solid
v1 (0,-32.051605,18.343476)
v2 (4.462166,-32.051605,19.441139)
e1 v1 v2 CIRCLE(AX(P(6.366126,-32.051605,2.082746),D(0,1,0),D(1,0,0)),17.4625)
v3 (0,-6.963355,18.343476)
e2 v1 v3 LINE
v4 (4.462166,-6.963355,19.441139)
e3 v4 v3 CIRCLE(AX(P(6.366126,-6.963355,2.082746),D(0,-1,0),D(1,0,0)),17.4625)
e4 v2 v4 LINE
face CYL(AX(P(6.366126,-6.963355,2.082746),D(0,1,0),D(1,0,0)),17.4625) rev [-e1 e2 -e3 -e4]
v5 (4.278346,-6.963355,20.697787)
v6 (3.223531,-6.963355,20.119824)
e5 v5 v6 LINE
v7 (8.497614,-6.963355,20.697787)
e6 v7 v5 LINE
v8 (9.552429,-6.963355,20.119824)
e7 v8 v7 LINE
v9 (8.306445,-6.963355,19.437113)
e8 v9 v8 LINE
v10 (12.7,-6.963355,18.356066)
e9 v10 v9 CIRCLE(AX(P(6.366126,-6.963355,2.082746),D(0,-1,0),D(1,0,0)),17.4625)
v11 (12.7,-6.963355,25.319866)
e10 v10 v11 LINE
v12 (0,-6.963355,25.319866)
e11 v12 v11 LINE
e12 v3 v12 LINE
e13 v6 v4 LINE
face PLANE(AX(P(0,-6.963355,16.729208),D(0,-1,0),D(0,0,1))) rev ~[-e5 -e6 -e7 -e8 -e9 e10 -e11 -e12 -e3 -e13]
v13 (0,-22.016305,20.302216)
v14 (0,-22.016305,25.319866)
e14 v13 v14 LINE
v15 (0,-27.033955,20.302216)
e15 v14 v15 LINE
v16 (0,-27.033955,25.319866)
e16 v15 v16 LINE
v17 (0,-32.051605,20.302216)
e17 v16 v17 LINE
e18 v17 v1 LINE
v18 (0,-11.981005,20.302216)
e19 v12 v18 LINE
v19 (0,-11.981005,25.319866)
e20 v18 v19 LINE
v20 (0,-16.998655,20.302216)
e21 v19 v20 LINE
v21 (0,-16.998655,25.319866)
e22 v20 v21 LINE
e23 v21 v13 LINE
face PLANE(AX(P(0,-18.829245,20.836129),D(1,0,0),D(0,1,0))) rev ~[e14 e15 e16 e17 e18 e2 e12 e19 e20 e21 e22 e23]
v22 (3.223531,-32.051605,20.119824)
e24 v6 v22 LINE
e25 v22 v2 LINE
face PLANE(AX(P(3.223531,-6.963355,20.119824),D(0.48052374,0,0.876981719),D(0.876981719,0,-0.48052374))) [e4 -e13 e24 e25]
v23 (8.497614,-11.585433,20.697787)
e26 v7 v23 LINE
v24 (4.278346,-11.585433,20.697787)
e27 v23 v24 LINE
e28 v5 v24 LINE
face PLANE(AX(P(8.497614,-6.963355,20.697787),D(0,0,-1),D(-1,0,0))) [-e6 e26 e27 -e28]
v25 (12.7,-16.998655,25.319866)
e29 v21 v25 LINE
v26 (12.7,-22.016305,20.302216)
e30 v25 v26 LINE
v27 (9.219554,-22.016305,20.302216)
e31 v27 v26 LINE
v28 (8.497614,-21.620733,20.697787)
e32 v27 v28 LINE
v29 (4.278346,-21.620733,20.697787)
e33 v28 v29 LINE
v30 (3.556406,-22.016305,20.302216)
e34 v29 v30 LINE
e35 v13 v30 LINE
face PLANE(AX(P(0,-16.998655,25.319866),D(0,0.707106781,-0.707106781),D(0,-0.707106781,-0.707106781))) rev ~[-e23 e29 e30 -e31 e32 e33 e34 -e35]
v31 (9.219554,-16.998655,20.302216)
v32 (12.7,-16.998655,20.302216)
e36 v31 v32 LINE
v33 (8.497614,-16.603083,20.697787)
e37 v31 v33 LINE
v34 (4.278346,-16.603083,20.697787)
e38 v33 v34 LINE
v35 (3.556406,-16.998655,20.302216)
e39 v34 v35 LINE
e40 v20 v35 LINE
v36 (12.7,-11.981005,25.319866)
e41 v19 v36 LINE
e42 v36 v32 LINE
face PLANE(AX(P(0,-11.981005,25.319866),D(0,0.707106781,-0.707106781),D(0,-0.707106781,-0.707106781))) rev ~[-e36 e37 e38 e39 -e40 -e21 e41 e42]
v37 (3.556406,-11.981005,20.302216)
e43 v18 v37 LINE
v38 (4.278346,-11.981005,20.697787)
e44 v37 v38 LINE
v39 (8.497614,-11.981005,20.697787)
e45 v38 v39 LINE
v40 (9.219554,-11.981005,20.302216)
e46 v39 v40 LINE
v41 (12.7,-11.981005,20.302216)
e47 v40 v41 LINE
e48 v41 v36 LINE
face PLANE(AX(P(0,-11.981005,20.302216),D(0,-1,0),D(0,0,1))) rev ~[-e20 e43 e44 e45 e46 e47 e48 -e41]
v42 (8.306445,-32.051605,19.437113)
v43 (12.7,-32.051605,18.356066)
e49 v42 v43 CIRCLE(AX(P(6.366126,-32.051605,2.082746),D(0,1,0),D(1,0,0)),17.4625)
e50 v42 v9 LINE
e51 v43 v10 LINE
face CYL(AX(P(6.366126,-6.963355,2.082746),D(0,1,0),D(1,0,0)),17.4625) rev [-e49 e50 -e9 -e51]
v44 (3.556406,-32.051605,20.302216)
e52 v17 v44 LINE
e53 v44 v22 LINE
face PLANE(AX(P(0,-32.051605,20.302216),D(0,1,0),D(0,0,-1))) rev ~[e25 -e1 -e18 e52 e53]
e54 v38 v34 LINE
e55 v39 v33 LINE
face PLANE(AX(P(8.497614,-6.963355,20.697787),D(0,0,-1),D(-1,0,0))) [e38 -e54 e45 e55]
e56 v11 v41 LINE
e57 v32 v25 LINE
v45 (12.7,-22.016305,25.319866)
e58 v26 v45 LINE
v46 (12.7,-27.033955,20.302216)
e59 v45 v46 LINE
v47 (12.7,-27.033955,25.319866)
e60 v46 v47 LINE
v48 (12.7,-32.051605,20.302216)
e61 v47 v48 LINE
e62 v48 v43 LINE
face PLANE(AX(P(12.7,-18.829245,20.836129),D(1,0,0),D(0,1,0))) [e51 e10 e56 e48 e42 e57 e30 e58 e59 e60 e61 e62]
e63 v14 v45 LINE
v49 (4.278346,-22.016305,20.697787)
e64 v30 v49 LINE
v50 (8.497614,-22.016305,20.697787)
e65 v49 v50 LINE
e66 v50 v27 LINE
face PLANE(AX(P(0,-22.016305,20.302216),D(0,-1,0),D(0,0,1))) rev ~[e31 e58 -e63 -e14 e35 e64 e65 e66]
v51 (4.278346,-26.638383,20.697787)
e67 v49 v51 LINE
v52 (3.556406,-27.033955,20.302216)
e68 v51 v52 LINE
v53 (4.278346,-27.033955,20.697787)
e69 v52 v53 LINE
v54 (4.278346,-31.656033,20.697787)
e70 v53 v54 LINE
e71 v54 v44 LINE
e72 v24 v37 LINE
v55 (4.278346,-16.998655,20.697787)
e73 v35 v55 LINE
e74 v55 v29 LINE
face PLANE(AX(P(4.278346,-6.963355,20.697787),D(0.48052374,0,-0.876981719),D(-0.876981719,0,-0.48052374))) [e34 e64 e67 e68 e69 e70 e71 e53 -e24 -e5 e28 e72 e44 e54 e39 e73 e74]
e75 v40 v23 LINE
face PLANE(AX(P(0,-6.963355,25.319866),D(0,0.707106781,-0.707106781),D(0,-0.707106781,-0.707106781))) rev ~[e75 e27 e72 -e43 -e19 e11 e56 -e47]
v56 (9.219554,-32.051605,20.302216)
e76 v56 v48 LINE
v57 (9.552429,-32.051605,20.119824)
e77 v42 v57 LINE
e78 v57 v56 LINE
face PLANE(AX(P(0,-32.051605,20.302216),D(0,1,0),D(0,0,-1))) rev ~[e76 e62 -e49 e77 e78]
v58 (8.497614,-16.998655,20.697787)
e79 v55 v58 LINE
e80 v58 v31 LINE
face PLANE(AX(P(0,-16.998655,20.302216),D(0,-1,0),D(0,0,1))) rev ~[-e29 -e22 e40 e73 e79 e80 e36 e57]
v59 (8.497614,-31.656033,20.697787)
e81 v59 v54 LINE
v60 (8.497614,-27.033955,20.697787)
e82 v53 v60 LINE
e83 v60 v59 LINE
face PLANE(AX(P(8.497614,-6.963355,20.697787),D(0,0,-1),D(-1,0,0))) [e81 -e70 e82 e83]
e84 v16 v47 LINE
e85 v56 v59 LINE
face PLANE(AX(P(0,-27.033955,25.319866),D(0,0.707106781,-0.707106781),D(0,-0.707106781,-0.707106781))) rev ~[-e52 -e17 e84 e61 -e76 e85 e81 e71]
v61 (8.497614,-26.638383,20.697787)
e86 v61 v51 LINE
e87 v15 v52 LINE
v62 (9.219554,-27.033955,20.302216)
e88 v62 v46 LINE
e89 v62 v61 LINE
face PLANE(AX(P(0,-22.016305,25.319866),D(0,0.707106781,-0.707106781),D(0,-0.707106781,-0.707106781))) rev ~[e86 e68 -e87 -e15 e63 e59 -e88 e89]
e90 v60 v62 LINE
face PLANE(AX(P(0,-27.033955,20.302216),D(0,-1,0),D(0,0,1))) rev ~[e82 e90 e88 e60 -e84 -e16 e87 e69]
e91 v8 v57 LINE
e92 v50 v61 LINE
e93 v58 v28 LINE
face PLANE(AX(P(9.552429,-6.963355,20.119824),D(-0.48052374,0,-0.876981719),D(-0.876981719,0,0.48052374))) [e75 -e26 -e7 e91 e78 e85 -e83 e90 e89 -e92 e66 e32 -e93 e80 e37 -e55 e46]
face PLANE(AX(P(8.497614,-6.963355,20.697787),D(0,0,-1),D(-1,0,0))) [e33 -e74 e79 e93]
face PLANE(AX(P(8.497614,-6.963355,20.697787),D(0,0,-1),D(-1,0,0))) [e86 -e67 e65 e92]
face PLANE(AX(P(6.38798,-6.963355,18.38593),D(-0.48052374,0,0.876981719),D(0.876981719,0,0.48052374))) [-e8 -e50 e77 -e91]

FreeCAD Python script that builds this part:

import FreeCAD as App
import Part
import Sketcher
from FreeCAD import Vector
Q = App.Units.Quantity

doc = App.newDocument("Part")
params = doc.addObject("Spreadsheet::Sheet", "Params")
for row, (alias, value) in enumerate([
    ("pad1_length", "0.5 in"),
    ("sketch2_diameter", "1.375 in"),
    ("pocket1_length", "1 in"),
    ("pocket2_length", "1 in"),
], start=1):
    params.set(f"A{row}", alias)
    params.set(f"B{row}", "=" + value)
    params.setAlias(f"B{row}", alias)

body = doc.addObject("PartDesign::Body", "Body")

# Sketch on YZ plane
sketch1 = doc.addObject("Sketcher::SketchObject", "Sketch")
body.addObject(sketch1)
sketch1.AttachmentSupport = (doc.YZ_Plane, [""])
sketch1.MapMode = "FlatFace"
sketch1.addGeometry([
    Part.LineSegment(Vector(-27, 20.3, 0), Vector(-27, 25.3, 0)),  # 0
    Part.LineSegment(Vector(-27, 25.3, 0), Vector(-32.1, 20.3, 0)),  # 1
    Part.LineSegment(Vector(-32.1, 20.3, 0), Vector(-32.1, 16.7, 0)),  # 2
    Part.LineSegment(Vector(-32.1, 16.7, 0), Vector(-7, 16.7, 0)),  # 3
    Part.LineSegment(Vector(-7, 16.7, 0), Vector(-7, 25.3, 0)),  # 4
    Part.LineSegment(Vector(-7, 25.3, 0), Vector(-12, 20.3, 0)),  # 5
    Part.LineSegment(Vector(-12, 20.3, 0), Vector(-12, 25.3, 0)),  # 6
    Part.LineSegment(Vector(-12, 25.3, 0), Vector(-17, 20.3, 0)),  # 7
    Part.LineSegment(Vector(-17, 20.3, 0), Vector(-17, 25.3, 0)),  # 8
    Part.LineSegment(Vector(-17, 25.3, 0), Vector(-22, 20.3, 0)),  # 9
    Part.LineSegment(Vector(-22, 20.3, 0), Vector(-22, 25.3, 0)),  # 10
    Part.LineSegment(Vector(-22, 25.3, 0), Vector(-27, 20.3, 0)),  # 11
], False)
sketch1.addConstraint([
    Sketcher.Constraint("Coincident", 0, 2, 1, 1),
    Sketcher.Constraint("Coincident", 1, 2, 2, 1),
    Sketcher.Constraint("Coincident", 2, 2, 3, 1),
    Sketcher.Constraint("Coincident", 3, 2, 4, 1),
    Sketcher.Constraint("Coincident", 4, 2, 5, 1),
    Sketcher.Constraint("Coincident", 5, 2, 6, 1),
    Sketcher.Constraint("Coincident", 6, 2, 7, 1),
    Sketcher.Constraint("Coincident", 7, 2, 8, 1),
    Sketcher.Constraint("Coincident", 8, 2, 9, 1),
    Sketcher.Constraint("Coincident", 9, 2, 10, 1),
    Sketcher.Constraint("Coincident", 10, 2, 11, 1),
    Sketcher.Constraint("Coincident", 11, 2, 0, 1),
    Sketcher.Constraint("Vertical", 0),
    Sketcher.Constraint("Vertical", 2),
    Sketcher.Constraint("Horizontal", 3),
    Sketcher.Constraint("Vertical", 4),
    Sketcher.Constraint("Vertical", 6),
    Sketcher.Constraint("Vertical", 8),
    Sketcher.Constraint("Vertical", 10),
    Sketcher.Constraint("Parallel", 1, 5),
    Sketcher.Constraint("Parallel", 5, 7),
    Sketcher.Constraint("Parallel", 7, 9),
    Sketcher.Constraint("Parallel", 9, 11),
    Sketcher.Constraint("Horizontal", 0, 2, 4, 2),
    Sketcher.Constraint("Horizontal", 1, 2, 5, 2),
    Sketcher.Constraint("Horizontal", 4, 2, 6, 2),
    Sketcher.Constraint("Horizontal", 5, 2, 7, 2),
    Sketcher.Constraint("Horizontal", 6, 2, 8, 2),
    Sketcher.Constraint("Horizontal", 7, 2, 9, 2),
    Sketcher.Constraint("Horizontal", 8, 2, 10, 2),
    Sketcher.Constraint("Horizontal", 9, 2, 11, 2),
    Sketcher.Constraint("Angle", 1, Q("-135 deg")),
    Sketcher.Constraint("DistanceY", -1, 1, 1, 2, Q("0.7992998 in")),
    Sketcher.Constraint("DistanceX", 3, 1, 3, 2, Q("25.08825 mm")),
    Sketcher.Constraint("DistanceY", 2, 2, 2, 1, Q("3.573008 mm")),
    Sketcher.Constraint("DistanceX", 0, 2, -1, 1, Q("27.033955 mm")),
])
pad1 = doc.addObject("PartDesign::Pad", "Pad")
body.addObject(pad1)
pad1.Profile = sketch1
pad1.setExpression("Length", "Params.pad1_length")

# Sketch on XZ plane
sketch2 = doc.addObject("Sketcher::SketchObject", "Sketch001")
body.addObject(sketch2)
sketch2.AttachmentSupport = (doc.XZ_Plane, [""])
sketch2.MapMode = "FlatFace"
sketch2.AttachmentOffset = App.Placement(Vector(0, 0, 6.963355), App.Rotation())
sketch2.addGeometry(Part.Circle(Vector(6, 2, 0), Vector(0, 0, 1), 17), False)
sketch2.addConstraint([
    Sketcher.Constraint("Diameter", 0, Q("1.375 in")),
    Sketcher.Constraint("DistanceX", -1, 1, 0, 3, Q("6.366126 mm")),
    Sketcher.Constraint("DistanceY", -1, 1, 0, 3, Q("2.082746 mm")),
])
sketch2.setExpression("Constraints[0]", "Params.sketch2_diameter")
pocket1 = doc.addObject("PartDesign::Pocket", "Pocket")
body.addObject(pocket1)
pocket1.Profile = sketch2
pocket1.setExpression("Length", "Params.pocket1_length")
pocket1.Reversed = True
body2 = doc.addObject("PartDesign::Body", "Body001")
doc.recompute()

body2.BaseFeature = body
doc.recompute()
body3 = doc.addObject("PartDesign::Body", "Body002")
doc.recompute()

body.Placement = App.Placement(Vector(0, 26.144935, 0), App.Rotation(Vector(0, 0, 1), 0))
boolean = doc.addObject("PartDesign::Boolean", "Boolean")
body3.addObject(boolean)
boolean.Type = "Fuse"
boolean.addObjects([body])

# Sketch on XZ plane
sketch3 = doc.addObject("Sketcher::SketchObject", "Sketch002")
body2.addObject(sketch3)
sketch3.AttachmentSupport = (doc.getObject("XZ_Plane001"), [""])
sketch3.MapMode = "FlatFace"
sketch3.AttachmentOffset = App.Placement(Vector(0, 0, 6.963355), App.Rotation())
sketch3.addGeometry([
    Part.LineSegment(Vector(6.4, 18.4, 0), Vector(9.6, 20.1, 0)),  # 0
    Part.LineSegment(Vector(9.6, 20.1, 0), Vector(8.5, 20.7, 0)),  # 1
    Part.LineSegment(Vector(8.5, 20.7, 0), Vector(4.3, 20.7, 0)),  # 2
    Part.LineSegment(Vector(4.3, 20.7, 0), Vector(3.2, 20.1, 0)),  # 3
    Part.LineSegment(Vector(3.2, 20.1, 0), Vector(6.4, 18.4, 0)),  # 4
], False)
sketch3.addConstraint([
    Sketcher.Constraint("Coincident", 0, 2, 1, 1),
    Sketcher.Constraint("Coincident", 1, 2, 2, 1),
    Sketcher.Constraint("Coincident", 2, 2, 3, 1),
    Sketcher.Constraint("Coincident", 3, 2, 4, 1),
    Sketcher.Constraint("Coincident", 4, 2, 0, 1),
    Sketcher.Constraint("Horizontal", 2),
    Sketcher.Constraint("Parallel", 0, 3),
    Sketcher.Constraint("Parallel", 1, 4),
    Sketcher.Constraint("Horizontal", 0, 2, 3, 2),
    Sketcher.Constraint("Equal", 1, 3),
    Sketcher.Constraint("DistanceX", 3, 2, 0, 2, Q("6.328898 mm")),
    Sketcher.Constraint("Distance", 0, Q("3.608341 mm")),
    Sketcher.Constraint("Distance", 1, Q("1.202779 mm")),
    Sketcher.Constraint("DistanceX", -1, 1, 0, 2, Q("9.552429 mm")),
    Sketcher.Constraint("DistanceY", -1, 1, 4, 2, Q("18.38593 mm")),
])
pocket2 = doc.addObject("PartDesign::Pocket", "Pocket001")
body2.addObject(pocket2)
pocket2.Profile = sketch3
pocket2.setExpression("Length", "Params.pocket2_length")
pocket2.Reversed = True
body3.Visibility = False

doc.recompute()
